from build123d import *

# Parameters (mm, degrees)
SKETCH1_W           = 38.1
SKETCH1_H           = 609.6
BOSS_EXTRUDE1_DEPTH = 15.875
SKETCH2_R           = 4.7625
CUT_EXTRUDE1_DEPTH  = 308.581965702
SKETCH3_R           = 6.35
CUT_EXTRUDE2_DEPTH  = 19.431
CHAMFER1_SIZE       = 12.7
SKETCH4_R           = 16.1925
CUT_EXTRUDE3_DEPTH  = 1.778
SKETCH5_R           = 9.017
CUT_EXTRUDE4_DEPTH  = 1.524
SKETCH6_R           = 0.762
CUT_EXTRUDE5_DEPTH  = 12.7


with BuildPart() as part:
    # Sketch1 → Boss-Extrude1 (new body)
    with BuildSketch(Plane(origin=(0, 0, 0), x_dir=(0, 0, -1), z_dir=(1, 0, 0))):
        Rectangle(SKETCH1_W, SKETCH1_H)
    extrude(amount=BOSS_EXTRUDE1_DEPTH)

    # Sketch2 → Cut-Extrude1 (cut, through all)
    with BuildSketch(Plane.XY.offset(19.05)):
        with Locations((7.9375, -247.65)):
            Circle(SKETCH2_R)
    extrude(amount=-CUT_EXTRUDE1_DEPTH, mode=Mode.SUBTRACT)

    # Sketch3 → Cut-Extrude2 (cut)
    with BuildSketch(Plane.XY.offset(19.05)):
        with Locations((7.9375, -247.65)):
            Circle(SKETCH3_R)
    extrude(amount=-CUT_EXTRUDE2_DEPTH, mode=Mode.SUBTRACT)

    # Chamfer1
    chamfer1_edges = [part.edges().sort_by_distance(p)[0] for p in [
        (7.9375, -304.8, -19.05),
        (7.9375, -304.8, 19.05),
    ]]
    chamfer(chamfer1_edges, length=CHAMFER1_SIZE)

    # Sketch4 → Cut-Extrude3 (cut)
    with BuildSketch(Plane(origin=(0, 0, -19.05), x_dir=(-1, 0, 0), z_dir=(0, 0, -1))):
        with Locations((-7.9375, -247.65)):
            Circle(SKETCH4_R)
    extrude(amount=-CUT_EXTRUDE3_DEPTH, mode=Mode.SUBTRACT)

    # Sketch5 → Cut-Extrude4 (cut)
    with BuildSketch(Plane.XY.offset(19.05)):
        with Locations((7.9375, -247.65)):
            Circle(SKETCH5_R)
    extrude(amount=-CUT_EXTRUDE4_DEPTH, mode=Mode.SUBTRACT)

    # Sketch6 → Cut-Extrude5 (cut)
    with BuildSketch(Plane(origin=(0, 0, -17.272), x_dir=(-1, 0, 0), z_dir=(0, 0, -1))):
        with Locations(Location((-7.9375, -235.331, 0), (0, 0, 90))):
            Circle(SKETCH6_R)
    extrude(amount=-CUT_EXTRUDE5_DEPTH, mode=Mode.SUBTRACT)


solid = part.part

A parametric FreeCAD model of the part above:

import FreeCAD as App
import Part
import Sketcher
Q = App.Units.Quantity


def edges_at(feature, points):
    """Names of the edges that pass closest to the given points."""
    edges = feature.Shape.Edges
    near = lambda p: min(range(len(edges)), key=lambda i: edges[i].distToShape(Part.Vertex(*p))[0])
    return sorted({f"Edge{near(p) + 1}" for p in points})


def add_polygon(sketch, points):
    """Adds a closed chain of lines whose ends are joined by coincident constraints."""
    first, n = sketch.GeometryCount, len(points)
    for a, b in zip(points, points[1:] + points[:1]):
        sketch.addGeometry(Part.LineSegment(App.Vector(*a, 0), App.Vector(*b, 0)), False)
    for i in range(n):
        sketch.addConstraint(Sketcher.Constraint("Coincident", first + i, 2, first + (i + 1) % n, 1))

doc = App.newDocument("Part")
params = doc.addObject("Spreadsheet::Sheet", "Params")
for row, (alias, value) in enumerate([
    ("sketch1_width", "24 in"),
    ("sketch1_height", "1.5 in"),
    ("pad1_length", "0.625 in"),
    ("sketch2_diameter", "0.375 in"),
    ("sketch3_diameter", "0.5 in"),
    ("pocket2_length", "0.765 in"),
    ("chamfer_size", "0.5 in"),
    ("sketch4_diameter", "1.275 in"),
    ("pocket3_length", "0.07 in"),
    ("sketch5_diameter", "0.71 in"),
    ("pocket4_length", "0.06 in"),
    ("sketch6_diameter", "0.06 in"),
    ("pocket5_length", "0.5 in"),
], start=1):
    params.set(f"A{row}", alias)
    params.set(f"B{row}", "=" + value)
    params.setAlias(f"B{row}", alias)

body = doc.addObject("PartDesign::Body", "Body")

sketch1 = body.newObject("Sketcher::SketchObject", "Sketch")
sketch1.AttachmentSupport = (doc.getObject("YZ_Plane"), [""])
sketch1.MapMode = "FlatFace"
add_polygon(sketch1, [(304.8, 19.05), (-304.8, 19.05), (-304.8, -19.05), (304.8, -19.05)])
sketch1.addConstraint(Sketcher.Constraint("Horizontal", 0))
sketch1.addConstraint(Sketcher.Constraint("Vertical", 1))
sketch1.addConstraint(Sketcher.Constraint("Horizontal", 2))
sketch1.addConstraint(Sketcher.Constraint("Vertical", 3))
sketch1.addConstraint(Sketcher.Constraint("Symmetric", 0, 2, 2, 2, -1, 1))
sketch1.addConstraint(Sketcher.Constraint("DistanceX", 0, 2, 0, 1, Q("24 in")))
sketch1.addConstraint(Sketcher.Constraint("DistanceY", 1, 2, 1, 1, Q("1.5 in")))
sketch1.setExpression("Constraints[9]", "Params.sketch1_width")
sketch1.setExpression("Constraints[10]", "Params.sketch1_height")
pad1 = body.newObject("PartDesign::Pad", "Pad")
pad1.Profile = sketch1
pad1.setExpression("Length", "Params.pad1_length")

sketch2 = body.newObject("Sketcher::SketchObject", "Sketch001")
sketch2.AttachmentSupport = (doc.getObject("XY_Plane"), [""])
sketch2.MapMode = "FlatFace"
sketch2.AttachmentOffset = App.Placement(App.Vector(0, 0, 0.75 * 25.4), App.Rotation())
sketch2.addGeometry(Part.Circle(App.Vector(7.9375, -247.65, 0), App.Vector(0, 0, 1), 4.7625), False)
sketch2.addConstraint(Sketcher.Constraint("Diameter", 0, Q("0.375 in")))
sketch2.addConstraint(Sketcher.Constraint("DistanceY", 0, 3, -1, 1, Q("9.75 in")))
sketch2.addConstraint(Sketcher.Constraint("DistanceX", -1, 1, 0, 3, Q("0.3125 in")))
sketch2.setExpression("Constraints[0]", "Params.sketch2_diameter")
pocket1 = body.newObject("PartDesign::Pocket", "Pocket")
pocket1.Profile = sketch2
pocket1.Type = "ThroughAll"

sketch3 = body.newObject("Sketcher::SketchObject", "Sketch002")
sketch3.AttachmentSupport = (doc.getObject("XY_Plane"), [""])
sketch3.MapMode = "FlatFace"
sketch3.AttachmentOffset = App.Placement(App.Vector(0, 0, 0.75 * 25.4), App.Rotation())
sketch3.addGeometry(Part.Circle(App.Vector(7.9375, -247.65, 0), App.Vector(0, 0, 1), 6.35), False)
sketch3.addConstraint(Sketcher.Constraint("Diameter", 0, Q("0.5 in")))
sketch3.addConstraint(Sketcher.Constraint("DistanceY", 0, 3, -1, 1, Q("9.75 in")))
sketch3.addConstraint(Sketcher.Constraint("DistanceX", -1, 1, 0, 3, Q("0.3125 in")))
sketch3.setExpression("Constraints[0]", "Params.sketch3_diameter")
pocket2 = body.newObject("PartDesign::Pocket", "Pocket001")
pocket2.Profile = sketch3
pocket2.setExpression("Length", "Params.pocket2_length")
doc.recompute()

chamfer = body.newObject("PartDesign::Chamfer", "Chamfer")
chamfer.Base = (pocket2, edges_at(pocket2, [(7.938, -304.8, -19.05), (7.938, -304.8, 19.05)]))
chamfer.setExpression("Size", "Params.chamfer_size")

sketch4 = body.newObject("Sketcher::SketchObject", "Sketch003")
sketch4.AttachmentSupport = (doc.getObject("XY_Plane"), [""])
sketch4.MapMode = "FlatFace"
sketch4.AttachmentOffset = App.Placement(App.Vector(0, 0, -0.75 * 25.4), App.Rotation())
sketch4.addGeometry(Part.Circle(App.Vector(7.9375, -247.65, 0), App.Vector(0, 0, 1), 16.1925), False)
sketch4.addConstraint(Sketcher.Constraint("Diameter", 0, Q("1.275 in")))
sketch4.addConstraint(Sketcher.Constraint("DistanceY", 0, 3, -1, 1, Q("9.75 in")))
sketch4.addConstraint(Sketcher.Constraint("DistanceX", -1, 1, 0, 3, Q("0.3125 in")))
sketch4.setExpression("Constraints[0]", "Params.sketch4_diameter")
pocket3 = body.newObject("PartDesign::Pocket", "Pocket002")
pocket3.Profile = sketch4
pocket3.setExpression("Length", "Params.pocket3_length")
pocket3.Reversed = True

sketch5 = body.newObject("Sketcher::SketchObject", "Sketch004")
sketch5.AttachmentSupport = (doc.getObject("XY_Plane"), [""])
sketch5.MapMode = "FlatFace"
sketch5.AttachmentOffset = App.Placement(App.Vector(0, 0, 0.75 * 25.4), App.Rotation())
sketch5.addGeometry(Part.Circle(App.Vector(7.9375, -247.65, 0), App.Vector(0, 0, 1), 9.017), False)
sketch5.addConstraint(Sketcher.Constraint("Diameter", 0, Q("0.71 in")))
sketch5.addConstraint(Sketcher.Constraint("DistanceY", 0, 3, -1, 1, Q("9.75 in")))
sketch5.addConstraint(Sketcher.Constraint("DistanceX", -1, 1, 0, 3, Q("0.3125 in")))
sketch5.setExpression("Constraints[0]", "Params.sketch5_diameter")
pocket4 = body.newObject("PartDesign::Pocket", "Pocket003")
pocket4.Profile = sketch5
pocket4.setExpression("Length", "Params.pocket4_length")

sketch6 = body.newObject("Sketcher::SketchObject", "Sketch005")
sketch6.AttachmentSupport = (doc.getObject("XY_Plane"), [""])
sketch6.MapMode = "FlatFace"
sketch6.AttachmentOffset = App.Placement(App.Vector(0, 0, -0.68 * 25.4), App.Rotation())
sketch6.addGeometry(Part.Circle(App.Vector(7.9375, -235.331, 0), App.Vector(0, 0, 1), 0.762), False)
sketch6.addConstraint(Sketcher.Constraint("Diameter", 0, Q("0.06 in")))
sketch6.addConstraint(Sketcher.Constraint("DistanceX", -1, 1, 0, 3, Q("0.3125 in")))
sketch6.addConstraint(Sketcher.Constraint("DistanceY", 0, 3, -1, 1, Q("9.265 in")))
sketch6.setExpression("Constraints[0]", "Params.sketch6_diameter")
pocket5 = body.newObject("PartDesign::Pocket", "Pocket004")
pocket5.Profile = sketch6
pocket5.setExpression("Length", "Params.pocket5_length")
pocket5.Reversed = True

doc.recompute()
